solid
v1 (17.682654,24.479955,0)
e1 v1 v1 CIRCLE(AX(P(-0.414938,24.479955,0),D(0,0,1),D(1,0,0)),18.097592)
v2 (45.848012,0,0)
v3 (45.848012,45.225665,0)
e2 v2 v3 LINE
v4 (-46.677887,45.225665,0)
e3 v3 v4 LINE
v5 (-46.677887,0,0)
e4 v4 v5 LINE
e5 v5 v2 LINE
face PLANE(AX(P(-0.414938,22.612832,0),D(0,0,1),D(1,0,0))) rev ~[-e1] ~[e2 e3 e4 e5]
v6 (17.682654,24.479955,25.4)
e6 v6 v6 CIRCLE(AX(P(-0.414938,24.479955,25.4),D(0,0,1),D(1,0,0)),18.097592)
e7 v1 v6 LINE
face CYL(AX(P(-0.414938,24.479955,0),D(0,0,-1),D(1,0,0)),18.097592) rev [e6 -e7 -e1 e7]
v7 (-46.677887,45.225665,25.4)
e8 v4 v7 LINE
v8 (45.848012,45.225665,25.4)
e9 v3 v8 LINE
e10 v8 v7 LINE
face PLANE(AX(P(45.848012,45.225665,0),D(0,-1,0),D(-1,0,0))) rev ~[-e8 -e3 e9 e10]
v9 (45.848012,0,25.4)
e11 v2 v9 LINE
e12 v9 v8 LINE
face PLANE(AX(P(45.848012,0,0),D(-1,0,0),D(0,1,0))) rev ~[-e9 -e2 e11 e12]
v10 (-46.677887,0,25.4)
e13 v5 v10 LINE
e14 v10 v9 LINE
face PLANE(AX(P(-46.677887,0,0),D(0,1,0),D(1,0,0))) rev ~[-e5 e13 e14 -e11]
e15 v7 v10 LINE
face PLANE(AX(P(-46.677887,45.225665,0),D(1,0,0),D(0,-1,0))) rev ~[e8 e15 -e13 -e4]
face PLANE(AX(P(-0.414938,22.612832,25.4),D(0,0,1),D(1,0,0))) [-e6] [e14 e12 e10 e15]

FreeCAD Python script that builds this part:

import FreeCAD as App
import Part
import Sketcher
Q = App.Units.Quantity

doc = App.newDocument("Part")
body = doc.addObject("PartDesign::Body", "Body")

sketch1 = doc.addObject("Sketcher::SketchObject", "Sketch")
body.addObject(sketch1)
sketch1.AttachmentSupport = (doc.XY_Plane, [""])
sketch1.MapMode = "FlatFace"
sketch1.addGeometry([
    Part.LineSegment(App.Vector(-47, 0, 0), App.Vector(46, 0, 0)),
    Part.LineSegment(App.Vector(46, 0, 0), App.Vector(46, 45, 0)),
    Part.LineSegment(App.Vector(46, 45, 0), App.Vector(-47, 45, 0)),
    Part.LineSegment(App.Vector(-47, 45, 0), App.Vector(-47, 0, 0)),
    Part.Circle(App.Vector(0, 24, 0), App.Vector(0, 0, 1), 18),
], False)
sketch1.addConstraint([
    Sketcher.Constraint("Coincident", 0, 2, 1, 1),
    Sketcher.Constraint("Coincident", 1, 2, 2, 1),
    Sketcher.Constraint("Coincident", 2, 2, 3, 1),
    Sketcher.Constraint("Coincident", 3, 2, 0, 1),
    Sketcher.Constraint("Horizontal", 0),
    Sketcher.Constraint("Vertical", 1),
    Sketcher.Constraint("Horizontal", 2),
    Sketcher.Constraint("Vertical", 3),
    Sketcher.Constraint("PointOnObject", 0, 2, -1),
    Sketcher.Constraint("Diameter", 4, 36.195184),
    Sketcher.Constraint("DistanceX", 0, 1, 0, 2, 92.525899),
    Sketcher.Constraint("DistanceY", 1, 1, 1, 2, 45.225665),
    Sketcher.Constraint("DistanceX", -1, 1, 0, 2, 45.848012),
    Sketcher.Constraint("DistanceX", 4, 3, 0, 2, 46.26295),
    Sketcher.Constraint("DistanceY", 4, 3, 1, 2, 20.74571),
])
pad1 = doc.addObject("PartDesign::Pad", "Pad")
body.addObject(pad1)
pad1.Profile = sketch1
pad1.Length = Q("1 in")

doc.recompute()
